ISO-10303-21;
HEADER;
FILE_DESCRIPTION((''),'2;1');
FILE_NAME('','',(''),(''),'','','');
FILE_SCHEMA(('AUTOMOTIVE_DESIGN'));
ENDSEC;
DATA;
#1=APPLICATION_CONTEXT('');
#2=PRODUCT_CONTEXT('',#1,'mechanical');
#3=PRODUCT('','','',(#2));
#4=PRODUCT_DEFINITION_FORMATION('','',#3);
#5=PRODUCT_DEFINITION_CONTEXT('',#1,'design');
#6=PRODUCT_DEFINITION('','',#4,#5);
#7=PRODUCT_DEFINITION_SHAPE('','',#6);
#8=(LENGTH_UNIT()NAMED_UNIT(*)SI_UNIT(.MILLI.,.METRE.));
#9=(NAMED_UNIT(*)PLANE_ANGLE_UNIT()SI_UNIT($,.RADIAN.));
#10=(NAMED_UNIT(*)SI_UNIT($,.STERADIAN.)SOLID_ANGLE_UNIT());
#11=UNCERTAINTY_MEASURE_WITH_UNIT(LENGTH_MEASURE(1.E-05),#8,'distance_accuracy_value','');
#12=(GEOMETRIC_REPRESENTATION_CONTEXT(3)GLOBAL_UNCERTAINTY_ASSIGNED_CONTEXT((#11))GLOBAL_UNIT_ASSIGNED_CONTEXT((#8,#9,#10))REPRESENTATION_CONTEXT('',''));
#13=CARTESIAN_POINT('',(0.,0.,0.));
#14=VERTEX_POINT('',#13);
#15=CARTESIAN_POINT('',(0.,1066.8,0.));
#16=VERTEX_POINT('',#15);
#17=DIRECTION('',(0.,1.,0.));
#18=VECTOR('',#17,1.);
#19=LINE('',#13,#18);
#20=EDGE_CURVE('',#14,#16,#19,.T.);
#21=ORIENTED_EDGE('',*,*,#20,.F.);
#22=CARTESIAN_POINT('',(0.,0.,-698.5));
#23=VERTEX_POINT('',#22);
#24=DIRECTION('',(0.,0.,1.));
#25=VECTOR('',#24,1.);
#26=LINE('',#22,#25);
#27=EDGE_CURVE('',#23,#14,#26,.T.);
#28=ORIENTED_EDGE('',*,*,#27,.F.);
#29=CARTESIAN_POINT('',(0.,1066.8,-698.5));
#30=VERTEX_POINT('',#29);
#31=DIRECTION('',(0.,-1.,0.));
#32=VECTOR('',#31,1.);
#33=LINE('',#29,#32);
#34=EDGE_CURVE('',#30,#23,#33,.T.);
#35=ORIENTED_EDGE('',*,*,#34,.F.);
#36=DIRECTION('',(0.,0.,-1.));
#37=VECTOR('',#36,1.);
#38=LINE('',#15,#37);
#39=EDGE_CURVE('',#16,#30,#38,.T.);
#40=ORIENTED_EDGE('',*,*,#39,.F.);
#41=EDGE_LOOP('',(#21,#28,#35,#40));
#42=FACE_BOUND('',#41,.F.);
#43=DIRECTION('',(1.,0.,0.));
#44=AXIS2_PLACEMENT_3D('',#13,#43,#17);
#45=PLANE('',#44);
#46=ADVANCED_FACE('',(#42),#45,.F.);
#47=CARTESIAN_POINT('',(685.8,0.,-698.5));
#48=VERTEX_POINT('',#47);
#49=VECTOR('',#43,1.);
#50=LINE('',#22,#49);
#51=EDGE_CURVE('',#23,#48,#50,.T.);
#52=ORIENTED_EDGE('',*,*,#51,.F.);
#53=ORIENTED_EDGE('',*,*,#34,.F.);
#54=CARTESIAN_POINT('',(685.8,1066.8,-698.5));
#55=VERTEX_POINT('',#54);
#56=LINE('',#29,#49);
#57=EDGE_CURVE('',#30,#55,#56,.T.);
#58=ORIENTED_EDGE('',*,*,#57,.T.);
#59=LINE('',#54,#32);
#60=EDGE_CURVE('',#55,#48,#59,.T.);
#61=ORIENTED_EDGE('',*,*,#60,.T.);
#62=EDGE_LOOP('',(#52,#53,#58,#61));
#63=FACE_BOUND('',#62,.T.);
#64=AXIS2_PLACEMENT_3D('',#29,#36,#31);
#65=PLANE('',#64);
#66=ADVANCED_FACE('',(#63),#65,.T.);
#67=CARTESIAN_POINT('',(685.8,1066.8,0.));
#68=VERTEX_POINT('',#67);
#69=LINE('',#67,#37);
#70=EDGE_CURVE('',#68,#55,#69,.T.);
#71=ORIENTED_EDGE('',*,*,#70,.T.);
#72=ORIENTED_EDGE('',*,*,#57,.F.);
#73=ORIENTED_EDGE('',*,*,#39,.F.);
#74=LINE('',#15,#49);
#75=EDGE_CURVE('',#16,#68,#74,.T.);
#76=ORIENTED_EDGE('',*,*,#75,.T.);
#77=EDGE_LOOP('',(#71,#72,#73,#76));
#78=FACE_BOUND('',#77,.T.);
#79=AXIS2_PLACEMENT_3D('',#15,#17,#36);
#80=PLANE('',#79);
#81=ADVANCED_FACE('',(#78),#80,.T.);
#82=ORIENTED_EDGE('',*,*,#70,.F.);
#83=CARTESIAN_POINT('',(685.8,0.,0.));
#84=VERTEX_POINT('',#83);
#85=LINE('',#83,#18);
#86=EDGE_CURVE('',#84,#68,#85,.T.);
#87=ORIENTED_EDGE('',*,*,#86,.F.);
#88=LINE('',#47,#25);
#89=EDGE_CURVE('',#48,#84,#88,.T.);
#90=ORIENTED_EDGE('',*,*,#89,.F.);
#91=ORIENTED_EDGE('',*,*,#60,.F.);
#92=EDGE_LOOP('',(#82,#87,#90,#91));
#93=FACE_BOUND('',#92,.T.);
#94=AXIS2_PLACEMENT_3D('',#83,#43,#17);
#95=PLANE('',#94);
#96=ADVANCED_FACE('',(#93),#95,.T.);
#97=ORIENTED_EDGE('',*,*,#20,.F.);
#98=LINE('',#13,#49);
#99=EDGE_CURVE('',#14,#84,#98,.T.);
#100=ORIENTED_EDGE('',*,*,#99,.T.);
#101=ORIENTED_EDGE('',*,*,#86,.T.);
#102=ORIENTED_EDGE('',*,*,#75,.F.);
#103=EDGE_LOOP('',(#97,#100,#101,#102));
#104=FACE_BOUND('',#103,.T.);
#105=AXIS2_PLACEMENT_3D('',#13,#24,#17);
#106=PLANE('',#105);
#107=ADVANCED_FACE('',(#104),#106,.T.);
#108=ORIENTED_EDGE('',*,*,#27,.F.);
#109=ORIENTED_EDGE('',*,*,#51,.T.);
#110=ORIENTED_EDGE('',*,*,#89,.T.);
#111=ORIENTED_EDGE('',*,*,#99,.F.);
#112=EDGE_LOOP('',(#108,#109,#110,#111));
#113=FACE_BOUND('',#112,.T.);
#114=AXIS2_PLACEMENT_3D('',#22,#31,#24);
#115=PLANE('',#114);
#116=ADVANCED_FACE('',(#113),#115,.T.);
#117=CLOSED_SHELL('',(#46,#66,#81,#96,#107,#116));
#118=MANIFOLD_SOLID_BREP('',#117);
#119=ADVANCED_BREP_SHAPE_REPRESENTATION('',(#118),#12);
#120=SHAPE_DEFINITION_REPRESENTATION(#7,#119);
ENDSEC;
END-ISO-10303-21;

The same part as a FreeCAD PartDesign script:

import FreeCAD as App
import Part
import Sketcher
from FreeCAD import Vector
Q = App.Units.Quantity


def add_polygon(sketch, points):
    """Adds a closed chain of lines whose ends are joined by coincident constraints."""
    first, n = sketch.GeometryCount, len(points)
    for a, b in zip(points, points[1:] + points[:1]):
        sketch.addGeometry(Part.LineSegment(App.Vector(*a, 0), App.Vector(*b, 0)), False)
    for i in range(n):
        sketch.addConstraint(Sketcher.Constraint("Coincident", first + i, 2, first + (i + 1) % n, 1))

doc = App.newDocument("Part")
params = doc.addObject("Spreadsheet::Sheet", "Params")
for row, (alias, value) in enumerate([
    ("sketch1_width", "42 in"),
    ("sketch1_height", "27.5 in"),
    ("pad1_length", "27 in"),
], start=1):
    params.set(f"A{row}", alias)
    params.set(f"B{row}", "=" + value)
    params.setAlias(f"B{row}", alias)

body = doc.addObject("PartDesign::Body", "Body")

# Sketch on YZ plane
sketch1 = body.newObject("Sketcher::SketchObject", "Sketch")
sketch1.AttachmentSupport = (doc.getObject("YZ_Plane"), [""])
sketch1.MapMode = "FlatFace"
add_polygon(sketch1, [(1067, 0), (0, 0), (0, -698), (1067, -698)])  # lines 0-3
sketch1.addConstraint([
    Sketcher.Constraint("Horizontal", 0),
    Sketcher.Constraint("Vertical", 1),
    Sketcher.Constraint("Horizontal", 2),
    Sketcher.Constraint("Vertical", 3),
    Sketcher.Constraint("Coincident", 0, 2, -1, 1),
    Sketcher.Constraint("DistanceX", 0, 2, 0, 1, Q("42 in")),
    Sketcher.Constraint("DistanceY", 1, 2, 1, 1, Q("27.5 in")),
])
sketch1.setExpression("Constraints[9]", "Params.sketch1_width")
sketch1.setExpression("Constraints[10]", "Params.sketch1_height")
pad1 = body.newObject("PartDesign::Pad", "Pad")
pad1.Profile = sketch1
pad1.setExpression("Length", "Params.pad1_length")

doc.recompute()
